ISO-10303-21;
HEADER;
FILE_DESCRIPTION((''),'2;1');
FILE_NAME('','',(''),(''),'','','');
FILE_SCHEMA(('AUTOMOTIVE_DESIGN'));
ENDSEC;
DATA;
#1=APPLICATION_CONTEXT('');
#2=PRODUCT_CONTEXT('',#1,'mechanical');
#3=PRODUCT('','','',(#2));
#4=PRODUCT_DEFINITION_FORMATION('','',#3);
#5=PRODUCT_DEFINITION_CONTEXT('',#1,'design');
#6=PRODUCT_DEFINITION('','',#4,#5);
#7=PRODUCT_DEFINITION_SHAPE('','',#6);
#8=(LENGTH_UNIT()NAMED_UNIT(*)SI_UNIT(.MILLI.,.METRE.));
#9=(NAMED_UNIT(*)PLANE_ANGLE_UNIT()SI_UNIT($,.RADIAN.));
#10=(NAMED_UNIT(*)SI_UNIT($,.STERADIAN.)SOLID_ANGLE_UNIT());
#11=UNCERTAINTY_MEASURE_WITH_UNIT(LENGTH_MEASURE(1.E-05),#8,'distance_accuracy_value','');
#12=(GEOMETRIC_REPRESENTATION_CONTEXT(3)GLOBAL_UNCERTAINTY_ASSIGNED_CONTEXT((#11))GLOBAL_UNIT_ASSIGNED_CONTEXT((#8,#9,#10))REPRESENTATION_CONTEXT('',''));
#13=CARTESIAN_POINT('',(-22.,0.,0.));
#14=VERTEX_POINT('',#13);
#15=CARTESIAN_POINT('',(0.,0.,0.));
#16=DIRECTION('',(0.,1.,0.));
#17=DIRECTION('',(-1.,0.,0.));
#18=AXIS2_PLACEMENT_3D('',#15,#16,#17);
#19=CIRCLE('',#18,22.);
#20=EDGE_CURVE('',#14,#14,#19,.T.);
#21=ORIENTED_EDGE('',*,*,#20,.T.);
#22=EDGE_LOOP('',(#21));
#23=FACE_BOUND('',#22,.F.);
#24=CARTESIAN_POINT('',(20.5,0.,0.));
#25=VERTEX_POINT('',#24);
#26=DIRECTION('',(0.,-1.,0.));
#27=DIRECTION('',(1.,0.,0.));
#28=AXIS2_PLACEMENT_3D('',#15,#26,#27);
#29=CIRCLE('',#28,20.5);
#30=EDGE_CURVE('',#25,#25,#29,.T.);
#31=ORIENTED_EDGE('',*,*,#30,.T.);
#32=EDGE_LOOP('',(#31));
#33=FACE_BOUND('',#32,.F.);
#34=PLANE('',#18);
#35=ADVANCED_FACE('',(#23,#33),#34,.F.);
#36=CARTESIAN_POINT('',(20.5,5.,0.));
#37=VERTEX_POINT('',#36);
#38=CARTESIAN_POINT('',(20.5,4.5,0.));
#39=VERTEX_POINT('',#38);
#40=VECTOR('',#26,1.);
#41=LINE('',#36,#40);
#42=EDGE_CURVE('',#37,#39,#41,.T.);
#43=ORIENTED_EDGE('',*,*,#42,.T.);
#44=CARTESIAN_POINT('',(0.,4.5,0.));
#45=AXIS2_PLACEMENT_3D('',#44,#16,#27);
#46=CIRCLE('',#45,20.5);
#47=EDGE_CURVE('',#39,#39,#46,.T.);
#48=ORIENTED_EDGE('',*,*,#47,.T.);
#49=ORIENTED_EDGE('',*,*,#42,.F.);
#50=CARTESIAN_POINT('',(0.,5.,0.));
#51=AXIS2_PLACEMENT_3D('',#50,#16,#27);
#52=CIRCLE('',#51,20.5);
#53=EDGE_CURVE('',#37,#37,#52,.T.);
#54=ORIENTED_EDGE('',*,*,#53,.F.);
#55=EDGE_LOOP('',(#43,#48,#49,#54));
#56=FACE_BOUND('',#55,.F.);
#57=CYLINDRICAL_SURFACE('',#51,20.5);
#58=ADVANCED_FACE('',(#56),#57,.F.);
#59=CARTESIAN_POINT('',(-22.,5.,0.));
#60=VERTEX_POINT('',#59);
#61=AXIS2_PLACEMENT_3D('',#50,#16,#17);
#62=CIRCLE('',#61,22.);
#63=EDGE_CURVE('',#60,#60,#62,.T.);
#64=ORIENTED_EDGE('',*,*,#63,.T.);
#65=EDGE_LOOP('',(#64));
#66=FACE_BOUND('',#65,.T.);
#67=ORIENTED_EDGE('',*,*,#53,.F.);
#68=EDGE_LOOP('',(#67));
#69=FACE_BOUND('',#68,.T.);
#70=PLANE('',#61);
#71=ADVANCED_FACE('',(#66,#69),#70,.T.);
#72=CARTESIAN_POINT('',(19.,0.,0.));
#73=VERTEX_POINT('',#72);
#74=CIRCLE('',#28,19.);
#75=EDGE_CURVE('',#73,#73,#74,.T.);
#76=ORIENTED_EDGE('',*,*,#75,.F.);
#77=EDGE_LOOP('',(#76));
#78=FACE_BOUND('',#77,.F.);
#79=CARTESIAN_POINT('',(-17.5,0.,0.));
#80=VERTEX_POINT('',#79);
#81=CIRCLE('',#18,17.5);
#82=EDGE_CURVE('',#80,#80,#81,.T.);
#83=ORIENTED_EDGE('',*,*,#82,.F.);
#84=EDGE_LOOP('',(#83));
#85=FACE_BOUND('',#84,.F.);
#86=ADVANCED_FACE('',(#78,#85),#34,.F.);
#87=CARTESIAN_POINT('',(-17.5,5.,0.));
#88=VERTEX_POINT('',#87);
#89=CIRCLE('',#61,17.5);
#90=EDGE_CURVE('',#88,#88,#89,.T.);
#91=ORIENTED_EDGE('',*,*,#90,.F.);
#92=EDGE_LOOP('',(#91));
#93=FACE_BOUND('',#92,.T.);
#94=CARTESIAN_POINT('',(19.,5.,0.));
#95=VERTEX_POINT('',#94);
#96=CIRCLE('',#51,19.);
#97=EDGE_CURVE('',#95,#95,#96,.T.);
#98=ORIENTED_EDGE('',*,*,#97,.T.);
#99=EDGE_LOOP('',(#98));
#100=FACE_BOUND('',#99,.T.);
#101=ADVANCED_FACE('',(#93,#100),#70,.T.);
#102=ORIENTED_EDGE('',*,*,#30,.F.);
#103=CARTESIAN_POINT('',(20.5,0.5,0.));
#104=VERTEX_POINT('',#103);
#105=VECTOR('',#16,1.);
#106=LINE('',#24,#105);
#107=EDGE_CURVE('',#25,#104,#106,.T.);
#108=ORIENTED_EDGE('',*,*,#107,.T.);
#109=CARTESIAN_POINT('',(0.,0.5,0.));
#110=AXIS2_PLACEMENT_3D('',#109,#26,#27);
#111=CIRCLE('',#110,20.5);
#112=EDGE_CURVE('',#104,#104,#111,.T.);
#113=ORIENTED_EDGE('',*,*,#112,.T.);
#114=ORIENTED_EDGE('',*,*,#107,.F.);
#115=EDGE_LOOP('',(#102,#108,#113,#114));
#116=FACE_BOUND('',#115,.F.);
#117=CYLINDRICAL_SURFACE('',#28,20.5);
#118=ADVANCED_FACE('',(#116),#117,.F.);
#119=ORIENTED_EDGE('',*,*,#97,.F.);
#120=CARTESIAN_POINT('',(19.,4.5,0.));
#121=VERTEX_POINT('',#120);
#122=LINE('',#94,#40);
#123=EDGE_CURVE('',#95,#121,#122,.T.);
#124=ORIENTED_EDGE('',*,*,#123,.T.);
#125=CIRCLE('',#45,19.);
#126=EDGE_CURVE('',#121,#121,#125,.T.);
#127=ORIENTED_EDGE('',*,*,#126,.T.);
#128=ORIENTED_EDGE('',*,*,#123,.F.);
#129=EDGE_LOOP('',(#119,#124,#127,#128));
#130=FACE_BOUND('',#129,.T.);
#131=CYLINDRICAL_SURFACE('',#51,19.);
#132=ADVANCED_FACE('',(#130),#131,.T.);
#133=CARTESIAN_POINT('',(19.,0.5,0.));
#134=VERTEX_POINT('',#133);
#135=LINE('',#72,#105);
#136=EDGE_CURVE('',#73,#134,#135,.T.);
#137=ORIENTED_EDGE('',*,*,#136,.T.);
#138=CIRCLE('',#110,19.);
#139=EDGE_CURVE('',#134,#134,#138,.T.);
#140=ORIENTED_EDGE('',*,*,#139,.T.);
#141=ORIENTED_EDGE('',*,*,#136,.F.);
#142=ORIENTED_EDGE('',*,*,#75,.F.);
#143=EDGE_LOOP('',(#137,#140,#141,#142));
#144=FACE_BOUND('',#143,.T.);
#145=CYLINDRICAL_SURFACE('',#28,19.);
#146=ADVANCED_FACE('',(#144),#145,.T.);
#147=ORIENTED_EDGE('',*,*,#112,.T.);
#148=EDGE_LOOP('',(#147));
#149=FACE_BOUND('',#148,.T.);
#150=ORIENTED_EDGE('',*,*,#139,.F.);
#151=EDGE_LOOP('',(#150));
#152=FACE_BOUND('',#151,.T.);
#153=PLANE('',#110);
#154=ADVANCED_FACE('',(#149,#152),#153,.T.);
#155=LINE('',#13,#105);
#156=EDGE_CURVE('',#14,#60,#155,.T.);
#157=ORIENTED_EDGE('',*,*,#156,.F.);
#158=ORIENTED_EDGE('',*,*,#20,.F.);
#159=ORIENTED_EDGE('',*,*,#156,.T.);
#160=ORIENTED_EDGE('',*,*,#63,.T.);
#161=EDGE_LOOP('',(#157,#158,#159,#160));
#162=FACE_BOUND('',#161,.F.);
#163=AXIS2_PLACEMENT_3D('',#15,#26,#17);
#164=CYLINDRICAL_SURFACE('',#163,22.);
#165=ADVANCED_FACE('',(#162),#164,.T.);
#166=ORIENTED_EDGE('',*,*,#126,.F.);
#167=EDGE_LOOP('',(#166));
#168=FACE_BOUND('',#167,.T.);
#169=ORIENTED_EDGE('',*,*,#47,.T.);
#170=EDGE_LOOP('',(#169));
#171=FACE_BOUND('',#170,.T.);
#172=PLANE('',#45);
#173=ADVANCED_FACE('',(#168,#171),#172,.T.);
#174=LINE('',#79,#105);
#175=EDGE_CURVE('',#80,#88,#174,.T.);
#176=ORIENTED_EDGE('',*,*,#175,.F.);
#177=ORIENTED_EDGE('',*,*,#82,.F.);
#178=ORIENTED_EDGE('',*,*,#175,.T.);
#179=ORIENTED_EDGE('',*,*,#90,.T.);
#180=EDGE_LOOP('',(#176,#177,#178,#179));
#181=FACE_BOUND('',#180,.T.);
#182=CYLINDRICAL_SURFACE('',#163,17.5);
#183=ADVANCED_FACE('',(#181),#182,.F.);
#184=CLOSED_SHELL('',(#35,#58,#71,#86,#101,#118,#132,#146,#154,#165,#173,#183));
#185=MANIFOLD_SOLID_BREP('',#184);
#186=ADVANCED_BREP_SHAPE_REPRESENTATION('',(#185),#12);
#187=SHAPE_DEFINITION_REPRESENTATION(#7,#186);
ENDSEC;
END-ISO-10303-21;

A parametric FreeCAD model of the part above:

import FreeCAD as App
import Part
import Sketcher

doc = App.newDocument("Part")
body = doc.addObject("PartDesign::Body", "Body")

# Sketch on XZ plane
sketch1 = body.newObject("Sketcher::SketchObject", "Sketch")
sketch1.AttachmentSupport = (doc.getObject("XZ_Plane"), [""])
sketch1.MapMode = "FlatFace"
sketch1.addGeometry([
    Part.Circle(App.Vector(0, 0, 0), App.Vector(0, 0, 1), 22),
    Part.Circle(App.Vector(0, 0, 0), App.Vector(0, 0, 1), 17.5),
], False)
sketch1.addConstraint([
    Sketcher.Constraint("Coincident", 0, 3, -1, 1),
    Sketcher.Constraint("Coincident", 1, 3, -1, 1),
    Sketcher.Constraint("Diameter", 0, 44.0),
    Sketcher.Constraint("Diameter", 1, 35.0),
])
pad1 = body.newObject("PartDesign::Pad", "Pad")
pad1.Profile = sketch1
pad1.Length = 5
pad1.Reversed = True

# Sketch on XZ plane
sketch2 = body.newObject("Sketcher::SketchObject", "Sketch001")
sketch2.AttachmentSupport = (doc.getObject("XZ_Plane"), [""])
sketch2.MapMode = "FlatFace"
sketch2.AttachmentOffset = App.Placement(App.Vector(0, 0, -5), App.Rotation())
sketch2.addGeometry([
    Part.Circle(App.Vector(0, 0, 0), App.Vector(0, 0, 1), 20.5),
    Part.Circle(App.Vector(0, 0, 0), App.Vector(0, 0, 1), 19),
], False)
sketch2.addConstraint([
    Sketcher.Constraint("Coincident", 0, 3, -1, 1),
    Sketcher.Constraint("Coincident", 1, 3, -1, 1),
    Sketcher.Constraint("Diameter", 0, 41.0),
    Sketcher.Constraint("Diameter", 1, 38.0),
])
pocket1 = body.newObject("PartDesign::Pocket", "Pocket")
pocket1.Profile = sketch2
pocket1.Length = 0.5
pocket1.Reversed = True

# Sketch on XZ plane
sketch3 = body.newObject("Sketcher::SketchObject", "Sketch002")
sketch3.AttachmentSupport = (doc.getObject("XZ_Plane"), [""])
sketch3.MapMode = "FlatFace"
sketch3.addGeometry([
    Part.Circle(App.Vector(0, 0, 0), App.Vector(0, 0, 1), 20.5),
    Part.Circle(App.Vector(0, 0, 0), App.Vector(0, 0, 1), 19),
], False)
sketch3.addConstraint([
    Sketcher.Constraint("Coincident", 0, 3, -1, 1),
    Sketcher.Constraint("Coincident", 1, 3, -1, 1),
    Sketcher.Constraint("Diameter", 0, 41.0),
    Sketcher.Constraint("Diameter", 1, 38.0),
])
pocket2 = body.newObject("PartDesign::Pocket", "Pocket001")
pocket2.Profile = sketch3
pocket2.Length = 0.5

doc.recompute()
